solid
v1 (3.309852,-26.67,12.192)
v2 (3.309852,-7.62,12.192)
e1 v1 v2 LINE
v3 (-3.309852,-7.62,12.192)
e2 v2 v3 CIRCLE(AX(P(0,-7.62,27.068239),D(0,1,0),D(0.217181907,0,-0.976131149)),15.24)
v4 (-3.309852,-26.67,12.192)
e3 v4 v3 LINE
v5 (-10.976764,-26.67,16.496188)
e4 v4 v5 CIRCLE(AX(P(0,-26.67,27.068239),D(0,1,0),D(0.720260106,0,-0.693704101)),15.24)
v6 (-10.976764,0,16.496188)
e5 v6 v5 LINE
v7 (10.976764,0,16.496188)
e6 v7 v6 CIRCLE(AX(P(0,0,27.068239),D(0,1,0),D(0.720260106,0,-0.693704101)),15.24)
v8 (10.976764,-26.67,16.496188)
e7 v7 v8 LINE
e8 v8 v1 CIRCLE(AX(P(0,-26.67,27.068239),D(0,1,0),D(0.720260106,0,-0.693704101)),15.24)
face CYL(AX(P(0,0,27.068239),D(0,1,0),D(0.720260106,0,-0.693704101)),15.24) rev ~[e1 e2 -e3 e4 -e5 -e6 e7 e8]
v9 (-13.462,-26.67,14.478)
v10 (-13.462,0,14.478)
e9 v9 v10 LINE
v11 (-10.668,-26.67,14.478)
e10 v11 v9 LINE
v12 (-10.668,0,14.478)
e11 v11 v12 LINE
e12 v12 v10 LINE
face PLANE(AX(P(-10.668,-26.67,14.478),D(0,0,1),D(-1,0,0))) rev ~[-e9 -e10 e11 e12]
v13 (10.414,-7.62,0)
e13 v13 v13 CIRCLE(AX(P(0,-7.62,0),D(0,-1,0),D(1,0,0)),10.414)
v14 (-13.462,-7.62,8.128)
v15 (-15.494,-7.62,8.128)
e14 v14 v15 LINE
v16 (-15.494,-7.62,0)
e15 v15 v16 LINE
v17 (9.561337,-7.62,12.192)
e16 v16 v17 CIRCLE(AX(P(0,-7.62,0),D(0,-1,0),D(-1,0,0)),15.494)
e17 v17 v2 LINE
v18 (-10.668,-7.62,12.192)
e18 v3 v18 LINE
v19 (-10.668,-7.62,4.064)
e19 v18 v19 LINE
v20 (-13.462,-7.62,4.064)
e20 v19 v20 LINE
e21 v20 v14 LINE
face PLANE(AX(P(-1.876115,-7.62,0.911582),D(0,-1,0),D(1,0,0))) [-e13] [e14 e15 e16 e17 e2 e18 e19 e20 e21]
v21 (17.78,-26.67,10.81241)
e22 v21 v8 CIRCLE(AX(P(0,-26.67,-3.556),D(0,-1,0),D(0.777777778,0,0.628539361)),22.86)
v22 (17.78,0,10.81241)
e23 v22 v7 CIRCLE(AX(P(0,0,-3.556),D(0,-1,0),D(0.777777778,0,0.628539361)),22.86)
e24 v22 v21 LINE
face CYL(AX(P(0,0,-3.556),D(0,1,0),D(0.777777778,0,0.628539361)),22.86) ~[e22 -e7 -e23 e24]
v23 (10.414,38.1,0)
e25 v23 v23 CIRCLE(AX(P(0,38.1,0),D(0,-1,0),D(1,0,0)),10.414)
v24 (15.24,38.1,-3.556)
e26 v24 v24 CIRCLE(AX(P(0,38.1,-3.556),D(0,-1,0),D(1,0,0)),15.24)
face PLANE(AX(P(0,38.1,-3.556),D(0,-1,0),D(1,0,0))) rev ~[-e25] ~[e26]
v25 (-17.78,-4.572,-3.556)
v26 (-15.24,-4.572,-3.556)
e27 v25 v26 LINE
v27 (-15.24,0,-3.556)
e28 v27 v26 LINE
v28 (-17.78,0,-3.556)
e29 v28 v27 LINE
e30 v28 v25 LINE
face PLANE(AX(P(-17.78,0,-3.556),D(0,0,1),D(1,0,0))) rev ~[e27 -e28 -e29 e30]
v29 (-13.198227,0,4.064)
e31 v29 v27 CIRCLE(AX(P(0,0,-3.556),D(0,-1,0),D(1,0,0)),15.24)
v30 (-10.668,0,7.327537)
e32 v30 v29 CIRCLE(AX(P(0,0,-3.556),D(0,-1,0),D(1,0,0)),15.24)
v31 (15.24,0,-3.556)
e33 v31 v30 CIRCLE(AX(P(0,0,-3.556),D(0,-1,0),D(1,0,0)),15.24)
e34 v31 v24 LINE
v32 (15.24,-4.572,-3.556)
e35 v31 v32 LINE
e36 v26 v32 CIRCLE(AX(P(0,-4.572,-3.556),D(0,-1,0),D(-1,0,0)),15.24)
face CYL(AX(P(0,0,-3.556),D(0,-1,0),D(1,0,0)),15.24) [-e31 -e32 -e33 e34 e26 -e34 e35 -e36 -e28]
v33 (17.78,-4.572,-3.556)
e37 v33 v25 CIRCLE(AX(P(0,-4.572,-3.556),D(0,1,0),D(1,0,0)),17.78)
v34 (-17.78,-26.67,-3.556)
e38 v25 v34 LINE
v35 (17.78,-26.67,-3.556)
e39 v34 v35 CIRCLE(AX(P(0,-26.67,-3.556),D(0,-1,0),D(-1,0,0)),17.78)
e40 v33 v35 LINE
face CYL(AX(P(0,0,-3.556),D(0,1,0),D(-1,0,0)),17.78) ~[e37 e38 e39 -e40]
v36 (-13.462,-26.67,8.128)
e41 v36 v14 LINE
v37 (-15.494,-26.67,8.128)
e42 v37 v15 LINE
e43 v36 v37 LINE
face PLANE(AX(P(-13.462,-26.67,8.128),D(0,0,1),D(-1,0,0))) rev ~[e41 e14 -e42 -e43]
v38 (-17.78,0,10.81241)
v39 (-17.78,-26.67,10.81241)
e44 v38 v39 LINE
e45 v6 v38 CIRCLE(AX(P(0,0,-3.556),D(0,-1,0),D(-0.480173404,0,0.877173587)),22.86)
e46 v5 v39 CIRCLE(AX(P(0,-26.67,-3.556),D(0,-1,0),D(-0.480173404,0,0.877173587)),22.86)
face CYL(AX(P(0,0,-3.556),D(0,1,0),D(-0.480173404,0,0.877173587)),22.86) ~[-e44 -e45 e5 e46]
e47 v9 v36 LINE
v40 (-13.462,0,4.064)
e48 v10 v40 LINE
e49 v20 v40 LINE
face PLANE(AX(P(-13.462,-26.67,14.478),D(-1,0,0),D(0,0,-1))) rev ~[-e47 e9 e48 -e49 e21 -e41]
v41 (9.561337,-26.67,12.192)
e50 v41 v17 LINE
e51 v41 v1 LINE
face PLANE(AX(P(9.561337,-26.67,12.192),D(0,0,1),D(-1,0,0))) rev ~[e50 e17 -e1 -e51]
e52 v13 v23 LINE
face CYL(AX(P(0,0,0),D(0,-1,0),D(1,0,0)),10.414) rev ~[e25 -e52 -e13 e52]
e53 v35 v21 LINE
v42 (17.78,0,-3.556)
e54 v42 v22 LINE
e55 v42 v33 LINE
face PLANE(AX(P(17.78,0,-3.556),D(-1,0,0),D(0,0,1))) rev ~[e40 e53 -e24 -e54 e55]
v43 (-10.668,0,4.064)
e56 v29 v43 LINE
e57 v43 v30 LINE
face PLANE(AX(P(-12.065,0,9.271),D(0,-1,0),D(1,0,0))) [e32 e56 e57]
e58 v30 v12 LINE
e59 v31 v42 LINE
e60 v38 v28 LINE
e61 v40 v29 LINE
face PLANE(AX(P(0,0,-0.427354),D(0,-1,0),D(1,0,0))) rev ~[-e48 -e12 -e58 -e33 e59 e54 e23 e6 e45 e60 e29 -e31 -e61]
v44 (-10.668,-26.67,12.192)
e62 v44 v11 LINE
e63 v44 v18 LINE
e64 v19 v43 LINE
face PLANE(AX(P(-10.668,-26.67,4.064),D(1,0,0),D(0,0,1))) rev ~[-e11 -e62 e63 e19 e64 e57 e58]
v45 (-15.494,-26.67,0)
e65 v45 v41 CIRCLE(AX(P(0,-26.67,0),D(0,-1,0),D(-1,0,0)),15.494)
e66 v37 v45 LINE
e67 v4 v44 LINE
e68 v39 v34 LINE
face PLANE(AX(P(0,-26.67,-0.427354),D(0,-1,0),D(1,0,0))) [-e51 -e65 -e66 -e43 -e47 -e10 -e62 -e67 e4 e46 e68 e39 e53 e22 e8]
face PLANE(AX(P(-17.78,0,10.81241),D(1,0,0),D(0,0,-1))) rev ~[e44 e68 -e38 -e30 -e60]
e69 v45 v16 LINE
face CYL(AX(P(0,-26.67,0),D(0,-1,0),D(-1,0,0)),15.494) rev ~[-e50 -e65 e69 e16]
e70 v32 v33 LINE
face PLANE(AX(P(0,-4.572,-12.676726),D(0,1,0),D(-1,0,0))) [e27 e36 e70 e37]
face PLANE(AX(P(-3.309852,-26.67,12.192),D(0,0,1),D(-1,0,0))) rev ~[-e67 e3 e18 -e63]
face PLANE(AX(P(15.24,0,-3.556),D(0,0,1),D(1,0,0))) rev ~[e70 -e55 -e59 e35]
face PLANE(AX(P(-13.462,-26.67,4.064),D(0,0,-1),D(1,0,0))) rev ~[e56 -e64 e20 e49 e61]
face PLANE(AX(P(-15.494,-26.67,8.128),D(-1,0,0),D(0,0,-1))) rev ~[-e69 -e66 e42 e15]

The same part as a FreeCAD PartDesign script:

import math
import FreeCAD as App
import Part
import Sketcher
from FreeCAD import Vector
Q = App.Units.Quantity


def add_polygon(sketch, points):
    """Adds a closed chain of lines whose ends are joined by coincident constraints."""
    first, n = sketch.GeometryCount, len(points)
    for a, b in zip(points, points[1:] + points[:1]):
        sketch.addGeometry(Part.LineSegment(App.Vector(*a, 0), App.Vector(*b, 0)), False)
    for i in range(n):
        sketch.addConstraint(Sketcher.Constraint("Coincident", first + i, 2, first + (i + 1) % n, 1))

doc = App.newDocument("Part")
body = doc.addObject("PartDesign::Body", "Body")

# Sketch on XZ plane
sketch1 = doc.addObject("Sketcher::SketchObject", "Sketch")
body.addObject(sketch1)
sketch1.AttachmentSupport = (doc.XZ_Plane, [""])
sketch1.MapMode = "FlatFace"
sketch1.addGeometry([
    Part.LineSegment(Vector(-18, 11, 0), Vector(-18, -4, 0)),  # 0
    Part.ArcOfCircle(Part.Circle(Vector(0, -4, 0), Vector(0, 0, 1), 18), math.radians(180), math.radians(360)),  # 1
    Part.LineSegment(Vector(18, -4, 0), Vector(18, 11, 0)),  # 2
    Part.ArcOfCircle(Part.Circle(Vector(0, -4, 0), Vector(0, 0, 1), 23), math.radians(39), math.radians(61)),  # 3
    Part.ArcOfCircle(Part.Circle(Vector(0, 27, 0), Vector(0, 0, 1), 15), math.radians(-136), math.radians(-44)),  # 4
    Part.ArcOfCircle(Part.Circle(Vector(0, -4, 0), Vector(0, 0, 1), 23), math.radians(119), math.radians(141)),  # 5
    Part.Circle(Vector(0, 0, 0), Vector(0, 0, 1), 10),  # 6
], False)
sketch1.addConstraint([
    Sketcher.Constraint("Tangent", 0, 2, 1, 1),
    Sketcher.Constraint("Tangent", 1, 2, 2, 1),
    Sketcher.Constraint("Coincident", 2, 2, 3, 1),
    Sketcher.Constraint("Coincident", 3, 2, 4, 2),
    Sketcher.Constraint("Coincident", 4, 1, 5, 1),
    Sketcher.Constraint("Coincident", 5, 2, 0, 1),
    Sketcher.Constraint("Vertical", 0),
    Sketcher.Constraint("Vertical", 2),
    Sketcher.Constraint("Coincident", 6, 3, -1, 1),
    Sketcher.Constraint("Coincident", 3, 3, 1, 3),
    Sketcher.Constraint("Coincident", 5, 3, 1, 3),
    Sketcher.Constraint("Equal", 3, 5),
    Sketcher.Constraint("Symmetric", 3, 2, 4, 1, -2),
    Sketcher.Constraint("Radius", 1, Q("0.7 in")),
    Sketcher.Constraint("Radius", 3, Q("0.9 in")),
    Sketcher.Constraint("Radius", 4, Q("0.6 in")),
    Sketcher.Constraint("Diameter", 6, Q("0.82 in")),
    Sketcher.Constraint("DistanceY", 1, 3, -1, 1, Q("0.14 in")),
    Sketcher.Constraint("DistanceY", -1, 1, 4, 3, Q("27.068239 mm")),
])
pad1 = doc.addObject("PartDesign::Pad", "Pad")
body.addObject(pad1)
pad1.Profile = sketch1
pad1.Length = Q("1.05 in")

# Sketch on XZ plane
sketch2 = doc.addObject("Sketcher::SketchObject", "Sketch001")
body.addObject(sketch2)
sketch2.AttachmentSupport = (doc.XZ_Plane, [""])
sketch2.MapMode = "FlatFace"
sketch2.addGeometry([
    Part.Circle(Vector(0, -4, 0), Vector(0, 0, 1), 15),
    Part.Circle(Vector(0, 0, 0), Vector(0, 0, 1), 10),
], False)
sketch2.addConstraint([
    Sketcher.Constraint("Coincident", 1, 3, -1, 1),
    Sketcher.Constraint("PointOnObject", 0, 3, -2),
    Sketcher.Constraint("Diameter", 0, Q("1.2 in")),
    Sketcher.Constraint("Diameter", 1, Q("0.82 in")),
    Sketcher.Constraint("DistanceY", 0, 3, -1, 1, Q("0.14 in")),
])
pad2 = doc.addObject("PartDesign::Pad", "Pad001")
body.addObject(pad2)
pad2.Profile = sketch2
pad2.Length = Q("1.5 in")
pad2.Reversed = True

# Sketch on XZ plane
sketch3 = doc.addObject("Sketcher::SketchObject", "Sketch002")
body.addObject(sketch3)
sketch3.AttachmentSupport = (doc.XZ_Plane, [""])
sketch3.MapMode = "FlatFace"
sketch3.AttachmentOffset = App.Placement(Vector(0, 0, 1.05 * 25.4), App.Rotation())
add_polygon(sketch3, [(-13.5, 14.5), (-13.5, 4.1), (-10.7, 4.1), (-10.7, 14.5)])  # lines 0-3
sketch3.addConstraint([
    Sketcher.Constraint("Vertical", 0),
    Sketcher.Constraint("Horizontal", 1),
    Sketcher.Constraint("Vertical", 2),
    Sketcher.Constraint("Horizontal", 3),
    Sketcher.Constraint("DistanceX", 1, 1, 1, 2, Q("0.11 in")),
    Sketcher.Constraint("DistanceY", 0, 2, 0, 1, Q("0.41 in")),
    Sketcher.Constraint("DistanceX", 0, 2, -1, 1, Q("0.53 in")),
    Sketcher.Constraint("DistanceY", -1, 1, 0, 2, Q("0.16 in")),
])
pocket1 = doc.addObject("PartDesign::Pocket", "Pocket")
body.addObject(pocket1)
pocket1.Profile = sketch3
pocket1.Length = Q("1.05 in")

# Sketch on XZ plane
sketch4 = doc.addObject("Sketcher::SketchObject", "Sketch003")
body.addObject(sketch4)
sketch4.AttachmentSupport = (doc.XZ_Plane, [""])
sketch4.MapMode = "FlatFace"
sketch4.AttachmentOffset = App.Placement(Vector(0, 0, 1.05 * 25.4), App.Rotation())
sketch4.addGeometry([
    Part.LineSegment(Vector(-15.5, 8.1, 0), Vector(-15.5, 0, 0)),  # 0
    Part.ArcOfCircle(Part.Circle(Vector(0, 0, 0), Vector(0, 0, 1), 15.5), math.radians(180), math.radians(412)),  # 1
    Part.LineSegment(Vector(9.6, 12.2, 0), Vector(3.3, 12.2, 0)),  # 2
    Part.ArcOfCircle(Part.Circle(Vector(0, 27.1, 0), Vector(0, 0, 1), 15.2), math.radians(-103), math.radians(-77)),  # 3
    Part.LineSegment(Vector(-3.3, 12.2, 0), Vector(-10.7, 12.2, 0)),  # 4
    Part.LineSegment(Vector(-10.7, 12.2, 0), Vector(-10.7, 4.1, 0)),  # 5
    Part.LineSegment(Vector(-10.7, 4.1, 0), Vector(-13.5, 4.1, 0)),  # 6
    Part.LineSegment(Vector(-13.5, 4.1, 0), Vector(-13.5, 8.1, 0)),  # 7
    Part.LineSegment(Vector(-13.5, 8.1, 0), Vector(-15.5, 8.1, 0)),  # 8
    Part.Circle(Vector(0, 0, 0), Vector(0, 0, 1), 10.4),  # 9
], False)
sketch4.addConstraint([
    Sketcher.Constraint("Tangent", 0, 2, 1, 1),
    Sketcher.Constraint("Coincident", 1, 2, 2, 1),
    Sketcher.Constraint("Coincident", 2, 2, 3, 2),
    Sketcher.Constraint("Coincident", 3, 1, 4, 1),
    Sketcher.Constraint("Coincident", 4, 2, 5, 1),
    Sketcher.Constraint("Coincident", 5, 2, 6, 1),
    Sketcher.Constraint("Coincident", 6, 2, 7, 1),
    Sketcher.Constraint("Coincident", 7, 2, 8, 1),
    Sketcher.Constraint("Coincident", 8, 2, 0, 1),
    Sketcher.Constraint("Vertical", 0),
    Sketcher.Constraint("Horizontal", 2),
    Sketcher.Constraint("Horizontal", 4),
    Sketcher.Constraint("Vertical", 5),
    Sketcher.Constraint("Horizontal", 6),
    Sketcher.Constraint("Vertical", 7),
    Sketcher.Constraint("Horizontal", 8),
    Sketcher.Constraint("Coincident", 1, 3, -1, 1),
    Sketcher.Constraint("Coincident", 9, 3, -1, 1),
    Sketcher.Constraint("Symmetric", 2, 2, 3, 1, -2),
    Sketcher.Constraint("Equal", 0, 5),
    Sketcher.Constraint("Radius", 3, Q("0.6 in")),
    Sketcher.Constraint("Diameter", 9, Q("0.82 in")),
    Sketcher.Constraint("Radius", 1, Q("0.61 in")),
    Sketcher.Constraint("DistanceX", 6, 2, 6, 1, Q("0.11 in")),
    Sketcher.Constraint("DistanceX", 8, 2, 8, 1, Q("0.08 in")),
    Sketcher.Constraint("DistanceY", 0, 2, 0, 1, Q("0.32 in")),
    Sketcher.Constraint("DistanceY", 7, 1, 7, 2, Q("0.16 in")),
    Sketcher.Constraint("DistanceX", 2, 2, 2, 1, Q("6.251485 mm")),
])
pocket2 = doc.addObject("PartDesign::Pocket", "Pocket001")
body.addObject(pocket2)
pocket2.Profile = sketch4
pocket2.Length = Q("0.75 in")

# Sketch on XZ plane
sketch5 = doc.addObject("Sketcher::SketchObject", "Sketch004")
body.addObject(sketch5)
sketch5.AttachmentSupport = (doc.XZ_Plane, [""])
sketch5.MapMode = "FlatFace"
sketch5.addGeometry([
    Part.LineSegment(Vector(15.2, -3.6, 0), Vector(17.8, -3.6, 0)),
    Part.ArcOfCircle(Part.Circle(Vector(0, -3.6, 0), Vector(0, 0, 1), 17.8), math.radians(180), math.radians(360)),
    Part.LineSegment(Vector(-17.8, -3.6, 0), Vector(-15.2, -3.6, 0)),
    Part.ArcOfCircle(Part.Circle(Vector(0, -3.6, 0), Vector(0, 0, 1), 15.2), math.radians(180), math.radians(360)),
], False)
sketch5.addConstraint([
    Sketcher.Constraint("Coincident", 0, 2, 1, 2),
    Sketcher.Constraint("Coincident", 1, 1, 2, 1),
    Sketcher.Constraint("Coincident", 2, 2, 3, 1),
    Sketcher.Constraint("Coincident", 3, 2, 0, 1),
    Sketcher.Constraint("Horizontal", 0),
    Sketcher.Constraint("Horizontal", 2),
    Sketcher.Constraint("Coincident", 3, 3, 1, 3),
    Sketcher.Constraint("Symmetric", 0, 2, 1, 1, -2),
    Sketcher.Constraint("Horizontal", 3, 3, 0, 2),
    Sketcher.Constraint("Radius", 1, Q("0.7 in")),
    Sketcher.Constraint("Radius", 3, Q("0.6 in")),
    Sketcher.Constraint("DistanceY", 1, 3, -1, 1, Q("0.14 in")),
])
pocket3 = doc.addObject("PartDesign::Pocket", "Pocket002")
body.addObject(pocket3)
pocket3.Profile = sketch5
pocket3.Length = Q("0.18 in")
pocket3.Reversed = True

doc.recompute()
